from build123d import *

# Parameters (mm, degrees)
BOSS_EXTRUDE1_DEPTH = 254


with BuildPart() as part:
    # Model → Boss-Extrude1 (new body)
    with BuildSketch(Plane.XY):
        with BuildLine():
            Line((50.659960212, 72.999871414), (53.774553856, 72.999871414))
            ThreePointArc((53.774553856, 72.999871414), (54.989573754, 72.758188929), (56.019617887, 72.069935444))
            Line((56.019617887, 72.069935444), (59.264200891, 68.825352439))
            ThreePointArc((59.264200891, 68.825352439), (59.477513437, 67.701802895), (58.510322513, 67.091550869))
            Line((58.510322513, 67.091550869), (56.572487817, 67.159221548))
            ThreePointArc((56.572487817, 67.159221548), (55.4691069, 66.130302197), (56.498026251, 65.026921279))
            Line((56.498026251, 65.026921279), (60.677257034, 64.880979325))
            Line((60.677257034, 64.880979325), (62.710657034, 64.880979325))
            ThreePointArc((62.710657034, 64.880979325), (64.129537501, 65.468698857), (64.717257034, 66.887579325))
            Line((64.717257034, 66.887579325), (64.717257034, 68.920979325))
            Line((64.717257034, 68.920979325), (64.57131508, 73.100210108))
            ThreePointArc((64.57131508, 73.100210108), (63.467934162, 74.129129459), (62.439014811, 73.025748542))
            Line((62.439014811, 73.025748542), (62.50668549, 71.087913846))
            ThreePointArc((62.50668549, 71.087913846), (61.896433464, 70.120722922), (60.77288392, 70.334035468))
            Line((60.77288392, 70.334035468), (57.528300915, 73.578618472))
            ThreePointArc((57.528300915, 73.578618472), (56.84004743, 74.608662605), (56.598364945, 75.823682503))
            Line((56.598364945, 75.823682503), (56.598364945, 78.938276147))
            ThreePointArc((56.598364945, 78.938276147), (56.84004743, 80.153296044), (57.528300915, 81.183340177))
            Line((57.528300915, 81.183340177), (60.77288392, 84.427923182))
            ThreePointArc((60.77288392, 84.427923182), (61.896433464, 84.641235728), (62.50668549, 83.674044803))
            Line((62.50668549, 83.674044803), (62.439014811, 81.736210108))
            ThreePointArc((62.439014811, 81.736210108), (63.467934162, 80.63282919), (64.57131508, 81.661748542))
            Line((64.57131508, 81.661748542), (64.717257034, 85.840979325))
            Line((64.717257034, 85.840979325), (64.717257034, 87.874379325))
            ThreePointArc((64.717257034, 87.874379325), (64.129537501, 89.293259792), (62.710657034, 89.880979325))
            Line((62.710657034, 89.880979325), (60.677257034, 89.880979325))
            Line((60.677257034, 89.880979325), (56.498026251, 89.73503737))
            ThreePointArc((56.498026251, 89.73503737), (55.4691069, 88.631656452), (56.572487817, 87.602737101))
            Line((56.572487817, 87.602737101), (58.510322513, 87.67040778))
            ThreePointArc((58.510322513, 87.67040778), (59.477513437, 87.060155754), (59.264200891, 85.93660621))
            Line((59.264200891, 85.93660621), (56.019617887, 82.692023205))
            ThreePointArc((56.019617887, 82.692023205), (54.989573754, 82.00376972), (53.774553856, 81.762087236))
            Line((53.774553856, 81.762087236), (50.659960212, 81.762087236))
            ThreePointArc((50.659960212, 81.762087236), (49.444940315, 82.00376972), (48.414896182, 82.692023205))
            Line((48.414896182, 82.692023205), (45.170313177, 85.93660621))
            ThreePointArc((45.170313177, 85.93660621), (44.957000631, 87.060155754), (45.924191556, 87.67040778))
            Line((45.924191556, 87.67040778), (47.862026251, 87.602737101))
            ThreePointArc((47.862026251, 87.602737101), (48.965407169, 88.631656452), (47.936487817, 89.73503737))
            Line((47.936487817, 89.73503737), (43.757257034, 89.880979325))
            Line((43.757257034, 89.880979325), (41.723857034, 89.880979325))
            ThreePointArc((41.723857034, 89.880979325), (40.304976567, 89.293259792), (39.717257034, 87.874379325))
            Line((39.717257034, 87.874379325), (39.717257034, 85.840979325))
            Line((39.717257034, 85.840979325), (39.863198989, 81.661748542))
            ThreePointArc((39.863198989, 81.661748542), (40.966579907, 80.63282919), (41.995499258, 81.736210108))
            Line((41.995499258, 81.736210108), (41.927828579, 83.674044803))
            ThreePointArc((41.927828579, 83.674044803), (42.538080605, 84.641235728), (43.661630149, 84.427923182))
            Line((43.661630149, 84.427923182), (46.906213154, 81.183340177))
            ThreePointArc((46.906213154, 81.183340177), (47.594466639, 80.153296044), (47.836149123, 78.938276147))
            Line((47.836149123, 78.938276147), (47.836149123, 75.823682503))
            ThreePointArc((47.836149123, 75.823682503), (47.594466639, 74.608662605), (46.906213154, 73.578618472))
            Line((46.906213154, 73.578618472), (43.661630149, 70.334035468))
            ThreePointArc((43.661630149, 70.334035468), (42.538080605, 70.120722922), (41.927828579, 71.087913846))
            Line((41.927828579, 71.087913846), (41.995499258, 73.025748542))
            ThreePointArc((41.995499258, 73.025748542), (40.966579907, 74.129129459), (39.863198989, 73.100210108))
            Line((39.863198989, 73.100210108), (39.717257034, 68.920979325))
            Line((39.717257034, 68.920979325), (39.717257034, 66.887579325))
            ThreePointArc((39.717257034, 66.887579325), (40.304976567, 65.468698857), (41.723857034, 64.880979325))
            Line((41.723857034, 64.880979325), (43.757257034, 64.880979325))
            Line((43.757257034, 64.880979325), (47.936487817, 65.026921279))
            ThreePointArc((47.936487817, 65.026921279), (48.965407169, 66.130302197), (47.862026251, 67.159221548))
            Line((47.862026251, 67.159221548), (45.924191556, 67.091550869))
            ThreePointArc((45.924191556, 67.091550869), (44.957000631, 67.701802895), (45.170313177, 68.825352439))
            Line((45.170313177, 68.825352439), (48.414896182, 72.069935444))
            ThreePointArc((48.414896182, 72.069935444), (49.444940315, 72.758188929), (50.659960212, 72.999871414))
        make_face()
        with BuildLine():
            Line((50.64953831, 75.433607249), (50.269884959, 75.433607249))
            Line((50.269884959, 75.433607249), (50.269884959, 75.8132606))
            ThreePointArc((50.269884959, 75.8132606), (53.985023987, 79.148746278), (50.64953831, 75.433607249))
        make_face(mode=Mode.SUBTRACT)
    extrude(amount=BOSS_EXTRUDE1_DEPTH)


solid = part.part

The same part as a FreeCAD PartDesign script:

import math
import FreeCAD as App
import Part
import Sketcher

V = App.Vector
Q = App.Units.Quantity

doc = App.newDocument("Part")
params = doc.addObject("Spreadsheet::Sheet", "Params")
for row, (alias, value) in enumerate([
    ("sketch1_radius", "0.04 in"),
    ("sketch1_radius2", "0.125 in"),
    ("sketch1_radius3", "0.042 in"),
    ("sketch1_radius4", "0.079 in"),
    ("pad1_length", "10 in"),
], start=1):
    params.set(f"A{row}", alias)
    params.set(f"B{row}", "=" + value)
    params.setAlias(f"B{row}", alias)

body = doc.addObject("PartDesign::Body", "Body")

sketch1 = body.newObject("Sketcher::SketchObject", "Sketch")
sketch1.AttachmentSupport = (doc.getObject("XY_Plane"), [""])
sketch1.MapMode = "FlatFace"
sketch1.addGeometry([
    Part.LineSegment(V(50.65996, 72.999871, 0), V(53.774554, 72.999871, 0)),
    Part.ArcOfCircle(Part.Circle(V(53.774554, 69.824871, 0), V(0, 0, 1), 3.175), math.radians(45), math.radians(90)),
    Part.LineSegment(V(56.019618, 72.069935, 0), V(59.264201, 68.825352, 0)),
    Part.ArcOfCircle(Part.Circle(V(58.54578, 68.106932, 0), V(0, 0, 1), 1.016), math.radians(-92), math.radians(45)),
    Part.LineSegment(V(58.510323, 67.091551, 0), V(56.572488, 67.159222, 0)),
    Part.ArcOfCircle(Part.Circle(V(56.535257, 66.093071, 0), V(0, 0, 1), 1.0668), math.radians(88), math.radians(268)),
    Part.LineSegment(V(56.498026, 65.026921, 0), V(60.677257, 64.880979, 0)),
    Part.LineSegment(V(60.677257, 64.880979, 0), V(62.710657, 64.880979, 0)),
    Part.ArcOfCircle(Part.Circle(V(62.710657, 66.887579, 0), V(0, 0, 1), 2.0066), math.radians(-90), math.radians(0)),
    Part.LineSegment(V(64.717257, 66.887579, 0), V(64.717257, 68.920979, 0)),
    Part.LineSegment(V(64.717257, 68.920979, 0), V(64.571315, 73.10021, 0)),
    Part.ArcOfCircle(Part.Circle(V(63.505165, 73.062979, 0), V(0, 0, 1), 1.0668), math.radians(2), math.radians(182)),
    Part.LineSegment(V(62.439015, 73.025749, 0), V(62.506685, 71.087914, 0)),
    Part.ArcOfCircle(Part.Circle(V(61.491304, 71.052456, 0), V(0, 0, 1), 1.016), math.radians(-135), math.radians(2)),
    Part.LineSegment(V(60.772884, 70.334035, 0), V(57.528301, 73.578618, 0)),
    Part.ArcOfCircle(Part.Circle(V(59.773365, 75.823683, 0), V(0, 0, 1), 3.175), math.radians(-180), math.radians(-135)),
    Part.LineSegment(V(56.598365, 75.823683, 0), V(56.598365, 78.938276, 0)),
    Part.ArcOfCircle(Part.Circle(V(59.773365, 78.938276, 0), V(0, 0, 1), 3.175), math.radians(135), math.radians(180)),
    Part.LineSegment(V(57.528301, 81.18334, 0), V(60.772884, 84.427923, 0)),
    Part.ArcOfCircle(Part.Circle(V(61.491304, 83.709503, 0), V(0, 0, 1), 1.016), math.radians(-2), math.radians(135)),
    Part.LineSegment(V(62.506685, 83.674045, 0), V(62.439015, 81.73621, 0)),
    Part.ArcOfCircle(Part.Circle(V(63.505165, 81.698979, 0), V(0, 0, 1), 1.0668), math.radians(178), math.radians(358)),
    Part.LineSegment(V(64.571315, 81.661749, 0), V(64.717257, 85.840979, 0)),
    Part.LineSegment(V(64.717257, 85.840979, 0), V(64.717257, 87.874379, 0)),
    Part.ArcOfCircle(Part.Circle(V(62.710657, 87.874379, 0), V(0, 0, 1), 2.0066), math.radians(0), math.radians(90)),
    Part.LineSegment(V(62.710657, 89.880979, 0), V(60.677257, 89.880979, 0)),
    Part.LineSegment(V(60.677257, 89.880979, 0), V(56.498026, 89.735037, 0)),
    Part.ArcOfCircle(Part.Circle(V(56.535257, 88.668887, 0), V(0, 0, 1), 1.0668), math.radians(92), math.radians(272)),
    Part.LineSegment(V(56.572488, 87.602737, 0), V(58.510323, 87.670408, 0)),
    Part.ArcOfCircle(Part.Circle(V(58.54578, 86.655027, 0), V(0, 0, 1), 1.016), math.radians(-45), math.radians(92)),
    Part.LineSegment(V(59.264201, 85.936606, 0), V(56.019618, 82.692023, 0)),
    Part.ArcOfCircle(Part.Circle(V(53.774554, 84.937087, 0), V(0, 0, 1), 3.175), math.radians(-90), math.radians(-45)),
    Part.LineSegment(V(53.774554, 81.762087, 0), V(50.65996, 81.762087, 0)),
    Part.ArcOfCircle(Part.Circle(V(50.65996, 84.937087, 0), V(0, 0, 1), 3.175), math.radians(-135), math.radians(-90)),
    Part.LineSegment(V(48.414896, 82.692023, 0), V(45.170313, 85.936606, 0)),
    Part.ArcOfCircle(Part.Circle(V(45.888734, 86.655027, 0), V(0, 0, 1), 1.016), math.radians(88), math.radians(225)),
    Part.LineSegment(V(45.924192, 87.670408, 0), V(47.862026, 87.602737, 0)),
    Part.ArcOfCircle(Part.Circle(V(47.899257, 88.668887, 0), V(0, 0, 1), 1.0668), math.radians(-92), math.radians(88)),
    Part.LineSegment(V(47.936488, 89.735037, 0), V(43.757257, 89.880979, 0)),
    Part.LineSegment(V(43.757257, 89.880979, 0), V(41.723857, 89.880979, 0)),
    Part.ArcOfCircle(Part.Circle(V(41.723857, 87.874379, 0), V(0, 0, 1), 2.0066), math.radians(90), math.radians(180)),
    Part.LineSegment(V(39.717257, 87.874379, 0), V(39.717257, 85.840979, 0)),
    Part.LineSegment(V(39.717257, 85.840979, 0), V(39.863199, 81.661749, 0)),
    Part.ArcOfCircle(Part.Circle(V(40.929349, 81.698979, 0), V(0, 0, 1), 1.0668), math.radians(-178), math.radians(2)),
    Part.LineSegment(V(41.995499, 81.73621, 0), V(41.927829, 83.674045, 0)),
    Part.ArcOfCircle(Part.Circle(V(42.94321, 83.709503, 0), V(0, 0, 1), 1.016), math.radians(45), math.radians(182)),
    Part.LineSegment(V(43.66163, 84.427923, 0), V(46.906213, 81.18334, 0)),
    Part.ArcOfCircle(Part.Circle(V(44.661149, 78.938276, 0), V(0, 0, 1), 3.175), math.radians(0), math.radians(45)),
    Part.LineSegment(V(47.836149, 78.938276, 0), V(47.836149, 75.823683, 0)),
    Part.ArcOfCircle(Part.Circle(V(44.661149, 75.823683, 0), V(0, 0, 1), 3.175), math.radians(-45), math.radians(0)),
    Part.LineSegment(V(46.906213, 73.578618, 0), V(43.66163, 70.334035, 0)),
    Part.ArcOfCircle(Part.Circle(V(42.94321, 71.052456, 0), V(0, 0, 1), 1.016), math.radians(178), math.radians(315)),
    Part.LineSegment(V(41.927829, 71.087914, 0), V(41.995499, 73.025749, 0)),
    Part.ArcOfCircle(Part.Circle(V(40.929349, 73.062979, 0), V(0, 0, 1), 1.0668), math.radians(-2), math.radians(178)),
    Part.LineSegment(V(39.863199, 73.10021, 0), V(39.717257, 68.920979, 0)),
    Part.LineSegment(V(39.717257, 68.920979, 0), V(39.717257, 66.887579, 0)),
    Part.ArcOfCircle(Part.Circle(V(41.723857, 66.887579, 0), V(0, 0, 1), 2.0066), math.radians(180), math.radians(270)),
    Part.LineSegment(V(41.723857, 64.880979, 0), V(43.757257, 64.880979, 0)),
    Part.LineSegment(V(43.757257, 64.880979, 0), V(47.936488, 65.026921, 0)),
    Part.ArcOfCircle(Part.Circle(V(47.899257, 66.093071, 0), V(0, 0, 1), 1.0668), math.radians(-88), math.radians(92)),
    Part.LineSegment(V(47.862026, 67.159222, 0), V(45.924192, 67.091551, 0)),
    Part.ArcOfCircle(Part.Circle(V(45.888734, 68.106932, 0), V(0, 0, 1), 1.016), math.radians(135), math.radians(272)),
    Part.LineSegment(V(45.170313, 68.825352, 0), V(48.414896, 72.069935, 0)),
    Part.ArcOfCircle(Part.Circle(V(50.65996, 69.824871, 0), V(0, 0, 1), 3.175), math.radians(90), math.radians(135)),
    Part.ArcOfCircle(Part.Circle(V(52.217257, 77.380979, 0), V(0, 0, 1), 2.5), math.radians(-128.835568), math.radians(218.835568)),
    Part.LineSegment(V(50.649538, 75.433607, 0), V(50.269885, 75.433607, 0)),
    Part.LineSegment(V(50.269885, 75.433607, 0), V(50.269885, 75.813261, 0)),
], False)
sketch1.addConstraint([
    Sketcher.Constraint("Tangent", 0, 2, 1, 2),
    Sketcher.Constraint("Tangent", 1, 1, 2, 1),
    Sketcher.Constraint("Tangent", 2, 2, 3, 2),
    Sketcher.Constraint("Tangent", 3, 1, 4, 1),
    Sketcher.Constraint("Tangent", 4, 2, 5, 1),
    Sketcher.Constraint("Tangent", 5, 2, 6, 1),
    Sketcher.Constraint("Coincident", 6, 2, 7, 1),
    Sketcher.Constraint("Tangent", 7, 2, 8, 1),
    Sketcher.Constraint("Tangent", 8, 2, 9, 1),
    Sketcher.Constraint("Coincident", 9, 2, 10, 1),
    Sketcher.Constraint("Tangent", 10, 2, 11, 1),
    Sketcher.Constraint("Tangent", 11, 2, 12, 1),
    Sketcher.Constraint("Tangent", 12, 2, 13, 2),
    Sketcher.Constraint("Tangent", 13, 1, 14, 1),
    Sketcher.Constraint("Tangent", 14, 2, 15, 2),
    Sketcher.Constraint("Tangent", 15, 1, 16, 1),
    Sketcher.Constraint("Tangent", 16, 2, 17, 2),
    Sketcher.Constraint("Tangent", 17, 1, 18, 1),
    Sketcher.Constraint("Tangent", 18, 2, 19, 2),
    Sketcher.Constraint("Tangent", 19, 1, 20, 1),
    Sketcher.Constraint("Tangent", 20, 2, 21, 1),
    Sketcher.Constraint("Tangent", 21, 2, 22, 1),
    Sketcher.Constraint("Coincident", 22, 2, 23, 1),
    Sketcher.Constraint("Tangent", 23, 2, 24, 1),
    Sketcher.Constraint("Tangent", 24, 2, 25, 1),
    Sketcher.Constraint("Coincident", 25, 2, 26, 1),
    Sketcher.Constraint("Tangent", 26, 2, 27, 1),
    Sketcher.Constraint("Tangent", 27, 2, 28, 1),
    Sketcher.Constraint("Tangent", 28, 2, 29, 2),
    Sketcher.Constraint("Tangent", 29, 1, 30, 1),
    Sketcher.Constraint("Tangent", 30, 2, 31, 2),
    Sketcher.Constraint("Tangent", 31, 1, 32, 1),
    Sketcher.Constraint("Tangent", 32, 2, 33, 2),
    Sketcher.Constraint("Tangent", 33, 1, 34, 1),
    Sketcher.Constraint("Tangent", 34, 2, 35, 2),
    Sketcher.Constraint("Tangent", 35, 1, 36, 1),
    Sketcher.Constraint("Tangent", 36, 2, 37, 1),
    Sketcher.Constraint("Tangent", 37, 2, 38, 1),
    Sketcher.Constraint("Coincident", 38, 2, 39, 1),
    Sketcher.Constraint("Tangent", 39, 2, 40, 1),
    Sketcher.Constraint("Tangent", 40, 2, 41, 1),
    Sketcher.Constraint("Coincident", 41, 2, 42, 1),
    Sketcher.Constraint("Tangent", 42, 2, 43, 1),
    Sketcher.Constraint("Tangent", 43, 2, 44, 1),
    Sketcher.Constraint("Tangent", 44, 2, 45, 2),
    Sketcher.Constraint("Tangent", 45, 1, 46, 1),
    Sketcher.Constraint("Tangent", 46, 2, 47, 2),
    Sketcher.Constraint("Tangent", 47, 1, 48, 1),
    Sketcher.Constraint("Tangent", 48, 2, 49, 2),
    Sketcher.Constraint("Tangent", 49, 1, 50, 1),
    Sketcher.Constraint("Tangent", 50, 2, 51, 2),
    Sketcher.Constraint("Tangent", 51, 1, 52, 1),
    Sketcher.Constraint("Tangent", 52, 2, 53, 1),
    Sketcher.Constraint("Tangent", 53, 2, 54, 1),
    Sketcher.Constraint("Coincident", 54, 2, 55, 1),
    Sketcher.Constraint("Tangent", 55, 2, 56, 1),
    Sketcher.Constraint("Tangent", 56, 2, 57, 1),
    Sketcher.Constraint("Coincident", 57, 2, 58, 1),
    Sketcher.Constraint("Tangent", 58, 2, 59, 1),
    Sketcher.Constraint("Tangent", 59, 2, 60, 1),
    Sketcher.Constraint("Tangent", 60, 2, 61, 2),
    Sketcher.Constraint("Tangent", 61, 1, 62, 1),
    Sketcher.Constraint("Tangent", 62, 2, 63, 2),
    Sketcher.Constraint("Tangent", 63, 1, 0, 1),
    Sketcher.Constraint("Coincident", 64, 1, 65, 1),
    Sketcher.Constraint("Coincident", 65, 2, 66, 1),
    Sketcher.Constraint("Coincident", 66, 2, 64, 2),
    Sketcher.Constraint("Horizontal", 0),
    Sketcher.Constraint("Horizontal", 7),
    Sketcher.Constraint("Vertical", 9),
    Sketcher.Constraint("Vertical", 16),
    Sketcher.Constraint("Vertical", 23),
    Sketcher.Constraint("Horizontal", 25),
    Sketcher.Constraint("Horizontal", 32),
    Sketcher.Constraint("Horizontal", 39),
    Sketcher.Constraint("Vertical", 41),
    Sketcher.Constraint("Vertical", 48),
    Sketcher.Constraint("Vertical", 55),
    Sketcher.Constraint("Horizontal", 57),
    Sketcher.Constraint("Horizontal", 65),
    Sketcher.Constraint("Vertical", 66),
    Sketcher.Constraint("Equal", 5, 11),
    Sketcher.Constraint("Equal", 3, 13),
    Sketcher.Constraint("Equal", 1, 15),
    Sketcher.Constraint("Equal", 15, 17),
    Sketcher.Constraint("Equal", 13, 19),
    Sketcher.Constraint("Equal", 11, 21),
    Sketcher.Constraint("Equal", 8, 24),
    Sketcher.Constraint("Equal", 21, 27),
    Sketcher.Constraint("Equal", 19, 29),
    Sketcher.Constraint("Equal", 17, 31),
    Sketcher.Constraint("Equal", 31, 33),
    Sketcher.Constraint("Equal", 29, 35),
    Sketcher.Constraint("Equal", 27, 37),
    Sketcher.Constraint("Equal", 24, 40),
    Sketcher.Constraint("Equal", 37, 43),
    Sketcher.Constraint("Equal", 35, 45),
    Sketcher.Constraint("Equal", 33, 47),
    Sketcher.Constraint("Equal", 47, 49),
    Sketcher.Constraint("Equal", 45, 51),
    Sketcher.Constraint("Equal", 43, 53),
    Sketcher.Constraint("Equal", 40, 56),
    Sketcher.Constraint("Equal", 53, 59),
    Sketcher.Constraint("Equal", 51, 61),
    Sketcher.Constraint("Equal", 49, 63),
    Sketcher.Constraint("Parallel", 4, 6),
    Sketcher.Constraint("Parallel", 10, 12),
    Sketcher.Constraint("Parallel", 2, 14),
    Sketcher.Constraint("Perpendicular", 14, 18),
    Sketcher.Constraint("Perpendicular", 6, 20),
    Sketcher.Constraint("Parallel", 20, 22),
    Sketcher.Constraint("Perpendicular", 12, 26),
    Sketcher.Constraint("Parallel", 26, 28),
    Sketcher.Constraint("Parallel", 18, 30),
    Sketcher.Constraint("Perpendicular", 30, 34),
    Sketcher.Constraint("Perpendicular", 22, 36),
    Sketcher.Constraint("Parallel", 36, 38),
    Sketcher.Constraint("Perpendicular", 28, 42),
    Sketcher.Constraint("Parallel", 42, 44),
    Sketcher.Constraint("Parallel", 34, 46),
    Sketcher.Constraint("Perpendicular", 46, 50),
    Sketcher.Constraint("Perpendicular", 38, 52),
    Sketcher.Constraint("Parallel", 52, 54),
    Sketcher.Constraint("Perpendicular", 44, 58),
    Sketcher.Constraint("Parallel", 58, 60),
    Sketcher.Constraint("Parallel", 50, 62),
    Sketcher.Constraint("Horizontal", 29, 3, 35, 3),
    Sketcher.Constraint("Horizontal", 27, 3, 37, 3),
    Sketcher.Constraint("Horizontal", 24, 3, 40, 3),
    Sketcher.Constraint("Horizontal", 21, 3, 43, 3),
    Sketcher.Constraint("Horizontal", 19, 3, 45, 3),
    Sketcher.Constraint("Horizontal", 17, 3, 47, 3),
    Sketcher.Constraint("Horizontal", 15, 3, 49, 3),
    Sketcher.Constraint("Horizontal", 13, 3, 51, 3),
    Sketcher.Constraint("Horizontal", 11, 3, 53, 3),
    Sketcher.Constraint("Horizontal", 8, 3, 56, 3),
    Sketcher.Constraint("Horizontal", 5, 3, 59, 3),
    Sketcher.Constraint("Horizontal", 3, 3, 61, 3),
    Sketcher.Constraint("Horizontal", 30, 2, 33, 1),
    Sketcher.Constraint("Horizontal", 22, 2, 41, 2),
    Sketcher.Constraint("Horizontal", 21, 2, 42, 2),
    Sketcher.Constraint("Horizontal", 9, 2, 54, 2),
    Sketcher.Constraint("Vertical", 13, 3, 19, 3),
    Sketcher.Constraint("Vertical", 11, 3, 21, 3),
    Sketcher.Constraint("Vertical", 8, 3, 24, 3),
    Sketcher.Constraint("Vertical", 5, 3, 27, 3),
    Sketcher.Constraint("Vertical", 3, 3, 29, 3),
    Sketcher.Constraint("Vertical", 1, 3, 31, 3),
    Sketcher.Constraint("Vertical", 37, 3, 59, 3),
    Sketcher.Constraint("Vertical", 6, 2, 25, 2),
    Sketcher.Constraint("Equal", 25, 39),
    Sketcher.Constraint("Equal", 57, 9),
    Sketcher.Constraint("Equal", 32, 16),
    Sketcher.Constraint("Equal", 9, 23),
    Sketcher.Constraint("Equal", 65, 66),
    Sketcher.Constraint("Equal", 6, 10),
    Sketcher.Constraint("Equal", 4, 12),
    Sketcher.Constraint("Equal", 2, 14),
    Sketcher.Constraint("Radius", 3, Q("0.04 in")),
    Sketcher.Constraint("Angle", 4, Q("178 deg")),
    Sketcher.Constraint("Radius", 1, Q("0.125 in")),
    Sketcher.Constraint("Radius", 5, Q("0.042 in")),
    Sketcher.Constraint("Radius", 8, Q("0.079 in")),
    Sketcher.Constraint("Radius", 64, 2.5),
    Sketcher.Constraint("DistanceX", 7, 1, 7, 2, 2.0334),
    Sketcher.Constraint("DistanceX", -1, 1, 2, 2, 59.264201),
    Sketcher.Constraint("DistanceX", -1, 1, 14, 2, 57.528301),
    Sketcher.Constraint("DistanceX", -1, 1, 42, 2, 39.863199),
    Sketcher.Constraint("Distance", 6, 4.181778),
    Sketcher.Constraint("DistanceX", 0, 1, 0, 2, 3.114594),
    Sketcher.Constraint("DistanceX", 65, 2, 65, 1, 0.379653),
    Sketcher.Constraint("DistanceY", -1, 1, 1, 3, 69.824871),
    Sketcher.Constraint("DistanceY", -1, 1, 64, 3, 77.380979),
    Sketcher.Constraint("DistanceX", -1, 1, 64, 1, 50.649538),
])
sketch1.setExpression("Constraints[158]", "Params.sketch1_radius")
sketch1.setExpression("Constraints[160]", "Params.sketch1_radius2")
sketch1.setExpression("Constraints[161]", "Params.sketch1_radius3")
sketch1.setExpression("Constraints[162]", "Params.sketch1_radius4")
pad1 = body.newObject("PartDesign::Pad", "Pad")
pad1.Profile = sketch1
pad1.setExpression("Length", "Params.pad1_length")

doc.recompute()
